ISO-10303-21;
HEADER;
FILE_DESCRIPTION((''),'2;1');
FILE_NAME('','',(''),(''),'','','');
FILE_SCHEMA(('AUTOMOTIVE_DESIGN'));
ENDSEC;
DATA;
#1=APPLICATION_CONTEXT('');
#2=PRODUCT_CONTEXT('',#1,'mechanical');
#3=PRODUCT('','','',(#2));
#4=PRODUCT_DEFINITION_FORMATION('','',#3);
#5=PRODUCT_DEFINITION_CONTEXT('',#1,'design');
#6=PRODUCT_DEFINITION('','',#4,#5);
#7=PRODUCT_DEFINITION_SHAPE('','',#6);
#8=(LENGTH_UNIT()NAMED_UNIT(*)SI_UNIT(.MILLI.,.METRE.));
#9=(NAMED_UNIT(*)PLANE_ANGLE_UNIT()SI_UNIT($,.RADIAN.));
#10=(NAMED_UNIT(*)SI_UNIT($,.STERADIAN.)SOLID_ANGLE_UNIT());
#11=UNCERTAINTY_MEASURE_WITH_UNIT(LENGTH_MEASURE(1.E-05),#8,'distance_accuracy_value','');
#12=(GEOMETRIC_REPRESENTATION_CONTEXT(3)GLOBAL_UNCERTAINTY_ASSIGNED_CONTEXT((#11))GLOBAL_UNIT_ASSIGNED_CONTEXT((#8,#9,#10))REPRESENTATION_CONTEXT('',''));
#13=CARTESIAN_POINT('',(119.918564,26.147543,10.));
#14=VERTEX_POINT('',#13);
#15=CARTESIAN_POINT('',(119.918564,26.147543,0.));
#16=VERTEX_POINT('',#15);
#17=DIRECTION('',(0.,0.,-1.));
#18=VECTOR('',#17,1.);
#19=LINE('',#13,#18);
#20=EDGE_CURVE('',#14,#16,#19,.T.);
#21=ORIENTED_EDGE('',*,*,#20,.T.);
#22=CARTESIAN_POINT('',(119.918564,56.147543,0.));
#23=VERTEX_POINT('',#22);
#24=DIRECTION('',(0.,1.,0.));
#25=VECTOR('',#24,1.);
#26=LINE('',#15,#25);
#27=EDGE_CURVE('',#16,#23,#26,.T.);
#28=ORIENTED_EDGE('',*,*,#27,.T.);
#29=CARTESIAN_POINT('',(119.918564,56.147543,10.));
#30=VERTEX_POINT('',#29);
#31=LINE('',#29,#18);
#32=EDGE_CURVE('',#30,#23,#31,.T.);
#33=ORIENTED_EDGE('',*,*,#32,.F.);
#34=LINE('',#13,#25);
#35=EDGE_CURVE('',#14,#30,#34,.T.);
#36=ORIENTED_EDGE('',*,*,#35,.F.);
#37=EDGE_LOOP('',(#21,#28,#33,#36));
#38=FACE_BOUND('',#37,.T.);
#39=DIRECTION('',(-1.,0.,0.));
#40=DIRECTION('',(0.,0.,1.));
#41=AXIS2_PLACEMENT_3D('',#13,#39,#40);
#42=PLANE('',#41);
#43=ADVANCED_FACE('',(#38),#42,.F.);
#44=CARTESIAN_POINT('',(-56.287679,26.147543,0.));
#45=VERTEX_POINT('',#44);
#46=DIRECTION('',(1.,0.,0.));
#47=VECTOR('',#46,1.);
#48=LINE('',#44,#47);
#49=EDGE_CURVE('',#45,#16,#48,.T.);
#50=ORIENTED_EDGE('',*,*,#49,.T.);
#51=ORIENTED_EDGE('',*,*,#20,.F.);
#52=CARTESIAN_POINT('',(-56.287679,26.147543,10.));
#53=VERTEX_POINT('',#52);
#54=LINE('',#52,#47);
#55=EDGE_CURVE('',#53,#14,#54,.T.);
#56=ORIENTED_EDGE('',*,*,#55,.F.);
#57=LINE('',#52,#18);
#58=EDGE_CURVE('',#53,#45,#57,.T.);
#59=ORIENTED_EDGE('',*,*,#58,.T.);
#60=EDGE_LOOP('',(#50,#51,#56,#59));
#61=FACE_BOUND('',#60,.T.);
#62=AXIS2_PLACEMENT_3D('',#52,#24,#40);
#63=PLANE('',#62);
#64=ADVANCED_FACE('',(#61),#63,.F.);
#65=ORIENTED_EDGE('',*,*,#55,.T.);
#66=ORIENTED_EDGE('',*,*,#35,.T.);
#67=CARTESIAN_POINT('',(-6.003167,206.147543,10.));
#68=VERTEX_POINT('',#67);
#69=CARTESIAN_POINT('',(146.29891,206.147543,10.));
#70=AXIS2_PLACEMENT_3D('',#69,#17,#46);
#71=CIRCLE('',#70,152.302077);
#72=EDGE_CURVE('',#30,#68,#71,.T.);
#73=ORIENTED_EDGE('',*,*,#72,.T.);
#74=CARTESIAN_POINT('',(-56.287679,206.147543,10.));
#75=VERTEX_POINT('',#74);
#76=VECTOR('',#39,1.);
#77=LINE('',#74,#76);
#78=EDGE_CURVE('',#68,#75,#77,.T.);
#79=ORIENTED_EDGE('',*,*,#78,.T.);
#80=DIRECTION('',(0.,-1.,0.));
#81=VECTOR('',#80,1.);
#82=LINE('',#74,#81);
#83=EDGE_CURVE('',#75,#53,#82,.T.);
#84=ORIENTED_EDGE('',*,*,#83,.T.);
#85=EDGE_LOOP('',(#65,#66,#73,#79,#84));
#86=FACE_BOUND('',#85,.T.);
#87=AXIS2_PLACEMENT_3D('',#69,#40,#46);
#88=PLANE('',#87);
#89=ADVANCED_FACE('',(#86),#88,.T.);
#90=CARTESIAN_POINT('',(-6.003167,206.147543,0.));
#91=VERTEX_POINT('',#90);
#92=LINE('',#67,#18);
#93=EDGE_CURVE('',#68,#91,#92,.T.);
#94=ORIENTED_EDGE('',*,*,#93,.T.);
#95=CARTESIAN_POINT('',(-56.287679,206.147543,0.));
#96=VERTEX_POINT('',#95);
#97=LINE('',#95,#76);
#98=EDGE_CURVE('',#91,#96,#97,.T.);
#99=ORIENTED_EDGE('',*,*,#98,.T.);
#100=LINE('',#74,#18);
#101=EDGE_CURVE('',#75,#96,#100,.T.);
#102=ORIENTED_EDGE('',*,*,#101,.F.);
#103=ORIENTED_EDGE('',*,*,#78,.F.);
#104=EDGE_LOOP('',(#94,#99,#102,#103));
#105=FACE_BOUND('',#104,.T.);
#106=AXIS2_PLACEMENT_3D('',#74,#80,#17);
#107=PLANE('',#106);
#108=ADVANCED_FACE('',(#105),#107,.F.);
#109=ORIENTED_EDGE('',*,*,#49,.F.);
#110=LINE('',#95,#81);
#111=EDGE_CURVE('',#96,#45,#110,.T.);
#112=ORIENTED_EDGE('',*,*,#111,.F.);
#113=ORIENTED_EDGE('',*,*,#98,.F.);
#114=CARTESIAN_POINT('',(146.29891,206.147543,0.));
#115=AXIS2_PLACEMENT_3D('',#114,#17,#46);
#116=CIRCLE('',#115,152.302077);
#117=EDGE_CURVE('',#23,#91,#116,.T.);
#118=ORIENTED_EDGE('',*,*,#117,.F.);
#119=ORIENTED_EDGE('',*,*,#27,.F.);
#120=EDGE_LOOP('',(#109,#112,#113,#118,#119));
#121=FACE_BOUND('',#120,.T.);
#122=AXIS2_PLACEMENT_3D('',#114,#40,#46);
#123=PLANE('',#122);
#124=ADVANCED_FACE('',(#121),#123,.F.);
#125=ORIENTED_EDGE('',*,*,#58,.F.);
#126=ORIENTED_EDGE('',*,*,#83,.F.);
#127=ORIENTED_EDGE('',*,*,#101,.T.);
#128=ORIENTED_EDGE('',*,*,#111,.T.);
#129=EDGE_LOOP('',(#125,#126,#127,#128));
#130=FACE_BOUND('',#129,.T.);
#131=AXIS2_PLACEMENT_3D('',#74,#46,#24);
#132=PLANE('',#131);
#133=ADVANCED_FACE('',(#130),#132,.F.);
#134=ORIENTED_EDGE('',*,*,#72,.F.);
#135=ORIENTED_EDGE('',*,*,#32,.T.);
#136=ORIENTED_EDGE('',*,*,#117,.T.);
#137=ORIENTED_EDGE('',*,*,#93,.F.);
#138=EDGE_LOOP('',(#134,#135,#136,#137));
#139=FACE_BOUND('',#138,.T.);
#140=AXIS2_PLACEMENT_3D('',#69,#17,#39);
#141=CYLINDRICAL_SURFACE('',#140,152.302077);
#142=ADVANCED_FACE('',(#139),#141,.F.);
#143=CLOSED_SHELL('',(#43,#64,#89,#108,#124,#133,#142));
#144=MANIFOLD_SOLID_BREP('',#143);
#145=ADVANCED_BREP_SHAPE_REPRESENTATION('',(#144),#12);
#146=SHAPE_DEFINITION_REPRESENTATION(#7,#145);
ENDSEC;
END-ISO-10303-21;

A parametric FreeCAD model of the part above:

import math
import FreeCAD as App
import Part
import Sketcher

doc = App.newDocument("Part")
body = doc.addObject("PartDesign::Body", "Body")

# Sketch on XY plane
sketch1 = doc.addObject("Sketcher::SketchObject", "Sketch")
body.addObject(sketch1)
sketch1.AttachmentSupport = (doc.XY_Plane, [""])
sketch1.MapMode = "FlatFace"
sketch1.addGeometry(Part.LineSegment(App.Vector(-56.287679, 206.147543, 0), App.Vector(-56.287679, 26.147543, 0)), False)
sketch1.addGeometry(Part.LineSegment(App.Vector(-56.287679, 26.147543, 0), App.Vector(119.918564, 26.147543, 0)), False)
sketch1.addGeometry(Part.LineSegment(App.Vector(119.918564, 26.147543, 0), App.Vector(119.918564, 56.147543, 0)), False)
sketch1.addGeometry(Part.ArcOfCircle(Part.Circle(App.Vector(146.29891, 206.147543, 0), App.Vector(0, 0, 1), 152.302077), math.radians(-180), math.radians(-99.974548)), False)
sketch1.addGeometry(Part.LineSegment(App.Vector(-6.003167, 206.147543, 0), App.Vector(-56.287679, 206.147543, 0)), False)
sketch1.addConstraint(Sketcher.Constraint("Coincident", 0, 2, 1, 1))
sketch1.addConstraint(Sketcher.Constraint("Coincident", 1, 2, 2, 1))
sketch1.addConstraint(Sketcher.Constraint("Coincident", 2, 2, 3, 2))
sketch1.addConstraint(Sketcher.Constraint("Coincident", 3, 1, 4, 1))
sketch1.addConstraint(Sketcher.Constraint("Coincident", 4, 2, 0, 1))
sketch1.addConstraint(Sketcher.Constraint("Vertical", 0))
sketch1.addConstraint(Sketcher.Constraint("Horizontal", 1))
sketch1.addConstraint(Sketcher.Constraint("Vertical", 2))
sketch1.addConstraint(Sketcher.Constraint("Horizontal", 4))
sketch1.addConstraint(Sketcher.Constraint("DistanceY", 0, 2, 0, 1, 180.0))
sketch1.addConstraint(Sketcher.Constraint("DistanceY", 2, 1, 2, 2, 30.0))
sketch1.addConstraint(Sketcher.Constraint("DistanceY", 0, 2, 3, 3, 180.0))
sketch1.addConstraint(Sketcher.Constraint("Radius", 3, 152.302077))
sketch1.addConstraint(Sketcher.Constraint("DistanceX", 1, 1, 1, 2, 176.206243))
sketch1.addConstraint(Sketcher.Constraint("DistanceX", -1, 1, 3, 3, 146.29891))
sketch1.addConstraint(Sketcher.Constraint("DistanceY", -1, 1, 3, 3, 206.147543))
pad1 = doc.addObject("PartDesign::Pad", "Pad")
body.addObject(pad1)
pad1.Profile = sketch1
pad1.Length = 10

doc.recompute()
